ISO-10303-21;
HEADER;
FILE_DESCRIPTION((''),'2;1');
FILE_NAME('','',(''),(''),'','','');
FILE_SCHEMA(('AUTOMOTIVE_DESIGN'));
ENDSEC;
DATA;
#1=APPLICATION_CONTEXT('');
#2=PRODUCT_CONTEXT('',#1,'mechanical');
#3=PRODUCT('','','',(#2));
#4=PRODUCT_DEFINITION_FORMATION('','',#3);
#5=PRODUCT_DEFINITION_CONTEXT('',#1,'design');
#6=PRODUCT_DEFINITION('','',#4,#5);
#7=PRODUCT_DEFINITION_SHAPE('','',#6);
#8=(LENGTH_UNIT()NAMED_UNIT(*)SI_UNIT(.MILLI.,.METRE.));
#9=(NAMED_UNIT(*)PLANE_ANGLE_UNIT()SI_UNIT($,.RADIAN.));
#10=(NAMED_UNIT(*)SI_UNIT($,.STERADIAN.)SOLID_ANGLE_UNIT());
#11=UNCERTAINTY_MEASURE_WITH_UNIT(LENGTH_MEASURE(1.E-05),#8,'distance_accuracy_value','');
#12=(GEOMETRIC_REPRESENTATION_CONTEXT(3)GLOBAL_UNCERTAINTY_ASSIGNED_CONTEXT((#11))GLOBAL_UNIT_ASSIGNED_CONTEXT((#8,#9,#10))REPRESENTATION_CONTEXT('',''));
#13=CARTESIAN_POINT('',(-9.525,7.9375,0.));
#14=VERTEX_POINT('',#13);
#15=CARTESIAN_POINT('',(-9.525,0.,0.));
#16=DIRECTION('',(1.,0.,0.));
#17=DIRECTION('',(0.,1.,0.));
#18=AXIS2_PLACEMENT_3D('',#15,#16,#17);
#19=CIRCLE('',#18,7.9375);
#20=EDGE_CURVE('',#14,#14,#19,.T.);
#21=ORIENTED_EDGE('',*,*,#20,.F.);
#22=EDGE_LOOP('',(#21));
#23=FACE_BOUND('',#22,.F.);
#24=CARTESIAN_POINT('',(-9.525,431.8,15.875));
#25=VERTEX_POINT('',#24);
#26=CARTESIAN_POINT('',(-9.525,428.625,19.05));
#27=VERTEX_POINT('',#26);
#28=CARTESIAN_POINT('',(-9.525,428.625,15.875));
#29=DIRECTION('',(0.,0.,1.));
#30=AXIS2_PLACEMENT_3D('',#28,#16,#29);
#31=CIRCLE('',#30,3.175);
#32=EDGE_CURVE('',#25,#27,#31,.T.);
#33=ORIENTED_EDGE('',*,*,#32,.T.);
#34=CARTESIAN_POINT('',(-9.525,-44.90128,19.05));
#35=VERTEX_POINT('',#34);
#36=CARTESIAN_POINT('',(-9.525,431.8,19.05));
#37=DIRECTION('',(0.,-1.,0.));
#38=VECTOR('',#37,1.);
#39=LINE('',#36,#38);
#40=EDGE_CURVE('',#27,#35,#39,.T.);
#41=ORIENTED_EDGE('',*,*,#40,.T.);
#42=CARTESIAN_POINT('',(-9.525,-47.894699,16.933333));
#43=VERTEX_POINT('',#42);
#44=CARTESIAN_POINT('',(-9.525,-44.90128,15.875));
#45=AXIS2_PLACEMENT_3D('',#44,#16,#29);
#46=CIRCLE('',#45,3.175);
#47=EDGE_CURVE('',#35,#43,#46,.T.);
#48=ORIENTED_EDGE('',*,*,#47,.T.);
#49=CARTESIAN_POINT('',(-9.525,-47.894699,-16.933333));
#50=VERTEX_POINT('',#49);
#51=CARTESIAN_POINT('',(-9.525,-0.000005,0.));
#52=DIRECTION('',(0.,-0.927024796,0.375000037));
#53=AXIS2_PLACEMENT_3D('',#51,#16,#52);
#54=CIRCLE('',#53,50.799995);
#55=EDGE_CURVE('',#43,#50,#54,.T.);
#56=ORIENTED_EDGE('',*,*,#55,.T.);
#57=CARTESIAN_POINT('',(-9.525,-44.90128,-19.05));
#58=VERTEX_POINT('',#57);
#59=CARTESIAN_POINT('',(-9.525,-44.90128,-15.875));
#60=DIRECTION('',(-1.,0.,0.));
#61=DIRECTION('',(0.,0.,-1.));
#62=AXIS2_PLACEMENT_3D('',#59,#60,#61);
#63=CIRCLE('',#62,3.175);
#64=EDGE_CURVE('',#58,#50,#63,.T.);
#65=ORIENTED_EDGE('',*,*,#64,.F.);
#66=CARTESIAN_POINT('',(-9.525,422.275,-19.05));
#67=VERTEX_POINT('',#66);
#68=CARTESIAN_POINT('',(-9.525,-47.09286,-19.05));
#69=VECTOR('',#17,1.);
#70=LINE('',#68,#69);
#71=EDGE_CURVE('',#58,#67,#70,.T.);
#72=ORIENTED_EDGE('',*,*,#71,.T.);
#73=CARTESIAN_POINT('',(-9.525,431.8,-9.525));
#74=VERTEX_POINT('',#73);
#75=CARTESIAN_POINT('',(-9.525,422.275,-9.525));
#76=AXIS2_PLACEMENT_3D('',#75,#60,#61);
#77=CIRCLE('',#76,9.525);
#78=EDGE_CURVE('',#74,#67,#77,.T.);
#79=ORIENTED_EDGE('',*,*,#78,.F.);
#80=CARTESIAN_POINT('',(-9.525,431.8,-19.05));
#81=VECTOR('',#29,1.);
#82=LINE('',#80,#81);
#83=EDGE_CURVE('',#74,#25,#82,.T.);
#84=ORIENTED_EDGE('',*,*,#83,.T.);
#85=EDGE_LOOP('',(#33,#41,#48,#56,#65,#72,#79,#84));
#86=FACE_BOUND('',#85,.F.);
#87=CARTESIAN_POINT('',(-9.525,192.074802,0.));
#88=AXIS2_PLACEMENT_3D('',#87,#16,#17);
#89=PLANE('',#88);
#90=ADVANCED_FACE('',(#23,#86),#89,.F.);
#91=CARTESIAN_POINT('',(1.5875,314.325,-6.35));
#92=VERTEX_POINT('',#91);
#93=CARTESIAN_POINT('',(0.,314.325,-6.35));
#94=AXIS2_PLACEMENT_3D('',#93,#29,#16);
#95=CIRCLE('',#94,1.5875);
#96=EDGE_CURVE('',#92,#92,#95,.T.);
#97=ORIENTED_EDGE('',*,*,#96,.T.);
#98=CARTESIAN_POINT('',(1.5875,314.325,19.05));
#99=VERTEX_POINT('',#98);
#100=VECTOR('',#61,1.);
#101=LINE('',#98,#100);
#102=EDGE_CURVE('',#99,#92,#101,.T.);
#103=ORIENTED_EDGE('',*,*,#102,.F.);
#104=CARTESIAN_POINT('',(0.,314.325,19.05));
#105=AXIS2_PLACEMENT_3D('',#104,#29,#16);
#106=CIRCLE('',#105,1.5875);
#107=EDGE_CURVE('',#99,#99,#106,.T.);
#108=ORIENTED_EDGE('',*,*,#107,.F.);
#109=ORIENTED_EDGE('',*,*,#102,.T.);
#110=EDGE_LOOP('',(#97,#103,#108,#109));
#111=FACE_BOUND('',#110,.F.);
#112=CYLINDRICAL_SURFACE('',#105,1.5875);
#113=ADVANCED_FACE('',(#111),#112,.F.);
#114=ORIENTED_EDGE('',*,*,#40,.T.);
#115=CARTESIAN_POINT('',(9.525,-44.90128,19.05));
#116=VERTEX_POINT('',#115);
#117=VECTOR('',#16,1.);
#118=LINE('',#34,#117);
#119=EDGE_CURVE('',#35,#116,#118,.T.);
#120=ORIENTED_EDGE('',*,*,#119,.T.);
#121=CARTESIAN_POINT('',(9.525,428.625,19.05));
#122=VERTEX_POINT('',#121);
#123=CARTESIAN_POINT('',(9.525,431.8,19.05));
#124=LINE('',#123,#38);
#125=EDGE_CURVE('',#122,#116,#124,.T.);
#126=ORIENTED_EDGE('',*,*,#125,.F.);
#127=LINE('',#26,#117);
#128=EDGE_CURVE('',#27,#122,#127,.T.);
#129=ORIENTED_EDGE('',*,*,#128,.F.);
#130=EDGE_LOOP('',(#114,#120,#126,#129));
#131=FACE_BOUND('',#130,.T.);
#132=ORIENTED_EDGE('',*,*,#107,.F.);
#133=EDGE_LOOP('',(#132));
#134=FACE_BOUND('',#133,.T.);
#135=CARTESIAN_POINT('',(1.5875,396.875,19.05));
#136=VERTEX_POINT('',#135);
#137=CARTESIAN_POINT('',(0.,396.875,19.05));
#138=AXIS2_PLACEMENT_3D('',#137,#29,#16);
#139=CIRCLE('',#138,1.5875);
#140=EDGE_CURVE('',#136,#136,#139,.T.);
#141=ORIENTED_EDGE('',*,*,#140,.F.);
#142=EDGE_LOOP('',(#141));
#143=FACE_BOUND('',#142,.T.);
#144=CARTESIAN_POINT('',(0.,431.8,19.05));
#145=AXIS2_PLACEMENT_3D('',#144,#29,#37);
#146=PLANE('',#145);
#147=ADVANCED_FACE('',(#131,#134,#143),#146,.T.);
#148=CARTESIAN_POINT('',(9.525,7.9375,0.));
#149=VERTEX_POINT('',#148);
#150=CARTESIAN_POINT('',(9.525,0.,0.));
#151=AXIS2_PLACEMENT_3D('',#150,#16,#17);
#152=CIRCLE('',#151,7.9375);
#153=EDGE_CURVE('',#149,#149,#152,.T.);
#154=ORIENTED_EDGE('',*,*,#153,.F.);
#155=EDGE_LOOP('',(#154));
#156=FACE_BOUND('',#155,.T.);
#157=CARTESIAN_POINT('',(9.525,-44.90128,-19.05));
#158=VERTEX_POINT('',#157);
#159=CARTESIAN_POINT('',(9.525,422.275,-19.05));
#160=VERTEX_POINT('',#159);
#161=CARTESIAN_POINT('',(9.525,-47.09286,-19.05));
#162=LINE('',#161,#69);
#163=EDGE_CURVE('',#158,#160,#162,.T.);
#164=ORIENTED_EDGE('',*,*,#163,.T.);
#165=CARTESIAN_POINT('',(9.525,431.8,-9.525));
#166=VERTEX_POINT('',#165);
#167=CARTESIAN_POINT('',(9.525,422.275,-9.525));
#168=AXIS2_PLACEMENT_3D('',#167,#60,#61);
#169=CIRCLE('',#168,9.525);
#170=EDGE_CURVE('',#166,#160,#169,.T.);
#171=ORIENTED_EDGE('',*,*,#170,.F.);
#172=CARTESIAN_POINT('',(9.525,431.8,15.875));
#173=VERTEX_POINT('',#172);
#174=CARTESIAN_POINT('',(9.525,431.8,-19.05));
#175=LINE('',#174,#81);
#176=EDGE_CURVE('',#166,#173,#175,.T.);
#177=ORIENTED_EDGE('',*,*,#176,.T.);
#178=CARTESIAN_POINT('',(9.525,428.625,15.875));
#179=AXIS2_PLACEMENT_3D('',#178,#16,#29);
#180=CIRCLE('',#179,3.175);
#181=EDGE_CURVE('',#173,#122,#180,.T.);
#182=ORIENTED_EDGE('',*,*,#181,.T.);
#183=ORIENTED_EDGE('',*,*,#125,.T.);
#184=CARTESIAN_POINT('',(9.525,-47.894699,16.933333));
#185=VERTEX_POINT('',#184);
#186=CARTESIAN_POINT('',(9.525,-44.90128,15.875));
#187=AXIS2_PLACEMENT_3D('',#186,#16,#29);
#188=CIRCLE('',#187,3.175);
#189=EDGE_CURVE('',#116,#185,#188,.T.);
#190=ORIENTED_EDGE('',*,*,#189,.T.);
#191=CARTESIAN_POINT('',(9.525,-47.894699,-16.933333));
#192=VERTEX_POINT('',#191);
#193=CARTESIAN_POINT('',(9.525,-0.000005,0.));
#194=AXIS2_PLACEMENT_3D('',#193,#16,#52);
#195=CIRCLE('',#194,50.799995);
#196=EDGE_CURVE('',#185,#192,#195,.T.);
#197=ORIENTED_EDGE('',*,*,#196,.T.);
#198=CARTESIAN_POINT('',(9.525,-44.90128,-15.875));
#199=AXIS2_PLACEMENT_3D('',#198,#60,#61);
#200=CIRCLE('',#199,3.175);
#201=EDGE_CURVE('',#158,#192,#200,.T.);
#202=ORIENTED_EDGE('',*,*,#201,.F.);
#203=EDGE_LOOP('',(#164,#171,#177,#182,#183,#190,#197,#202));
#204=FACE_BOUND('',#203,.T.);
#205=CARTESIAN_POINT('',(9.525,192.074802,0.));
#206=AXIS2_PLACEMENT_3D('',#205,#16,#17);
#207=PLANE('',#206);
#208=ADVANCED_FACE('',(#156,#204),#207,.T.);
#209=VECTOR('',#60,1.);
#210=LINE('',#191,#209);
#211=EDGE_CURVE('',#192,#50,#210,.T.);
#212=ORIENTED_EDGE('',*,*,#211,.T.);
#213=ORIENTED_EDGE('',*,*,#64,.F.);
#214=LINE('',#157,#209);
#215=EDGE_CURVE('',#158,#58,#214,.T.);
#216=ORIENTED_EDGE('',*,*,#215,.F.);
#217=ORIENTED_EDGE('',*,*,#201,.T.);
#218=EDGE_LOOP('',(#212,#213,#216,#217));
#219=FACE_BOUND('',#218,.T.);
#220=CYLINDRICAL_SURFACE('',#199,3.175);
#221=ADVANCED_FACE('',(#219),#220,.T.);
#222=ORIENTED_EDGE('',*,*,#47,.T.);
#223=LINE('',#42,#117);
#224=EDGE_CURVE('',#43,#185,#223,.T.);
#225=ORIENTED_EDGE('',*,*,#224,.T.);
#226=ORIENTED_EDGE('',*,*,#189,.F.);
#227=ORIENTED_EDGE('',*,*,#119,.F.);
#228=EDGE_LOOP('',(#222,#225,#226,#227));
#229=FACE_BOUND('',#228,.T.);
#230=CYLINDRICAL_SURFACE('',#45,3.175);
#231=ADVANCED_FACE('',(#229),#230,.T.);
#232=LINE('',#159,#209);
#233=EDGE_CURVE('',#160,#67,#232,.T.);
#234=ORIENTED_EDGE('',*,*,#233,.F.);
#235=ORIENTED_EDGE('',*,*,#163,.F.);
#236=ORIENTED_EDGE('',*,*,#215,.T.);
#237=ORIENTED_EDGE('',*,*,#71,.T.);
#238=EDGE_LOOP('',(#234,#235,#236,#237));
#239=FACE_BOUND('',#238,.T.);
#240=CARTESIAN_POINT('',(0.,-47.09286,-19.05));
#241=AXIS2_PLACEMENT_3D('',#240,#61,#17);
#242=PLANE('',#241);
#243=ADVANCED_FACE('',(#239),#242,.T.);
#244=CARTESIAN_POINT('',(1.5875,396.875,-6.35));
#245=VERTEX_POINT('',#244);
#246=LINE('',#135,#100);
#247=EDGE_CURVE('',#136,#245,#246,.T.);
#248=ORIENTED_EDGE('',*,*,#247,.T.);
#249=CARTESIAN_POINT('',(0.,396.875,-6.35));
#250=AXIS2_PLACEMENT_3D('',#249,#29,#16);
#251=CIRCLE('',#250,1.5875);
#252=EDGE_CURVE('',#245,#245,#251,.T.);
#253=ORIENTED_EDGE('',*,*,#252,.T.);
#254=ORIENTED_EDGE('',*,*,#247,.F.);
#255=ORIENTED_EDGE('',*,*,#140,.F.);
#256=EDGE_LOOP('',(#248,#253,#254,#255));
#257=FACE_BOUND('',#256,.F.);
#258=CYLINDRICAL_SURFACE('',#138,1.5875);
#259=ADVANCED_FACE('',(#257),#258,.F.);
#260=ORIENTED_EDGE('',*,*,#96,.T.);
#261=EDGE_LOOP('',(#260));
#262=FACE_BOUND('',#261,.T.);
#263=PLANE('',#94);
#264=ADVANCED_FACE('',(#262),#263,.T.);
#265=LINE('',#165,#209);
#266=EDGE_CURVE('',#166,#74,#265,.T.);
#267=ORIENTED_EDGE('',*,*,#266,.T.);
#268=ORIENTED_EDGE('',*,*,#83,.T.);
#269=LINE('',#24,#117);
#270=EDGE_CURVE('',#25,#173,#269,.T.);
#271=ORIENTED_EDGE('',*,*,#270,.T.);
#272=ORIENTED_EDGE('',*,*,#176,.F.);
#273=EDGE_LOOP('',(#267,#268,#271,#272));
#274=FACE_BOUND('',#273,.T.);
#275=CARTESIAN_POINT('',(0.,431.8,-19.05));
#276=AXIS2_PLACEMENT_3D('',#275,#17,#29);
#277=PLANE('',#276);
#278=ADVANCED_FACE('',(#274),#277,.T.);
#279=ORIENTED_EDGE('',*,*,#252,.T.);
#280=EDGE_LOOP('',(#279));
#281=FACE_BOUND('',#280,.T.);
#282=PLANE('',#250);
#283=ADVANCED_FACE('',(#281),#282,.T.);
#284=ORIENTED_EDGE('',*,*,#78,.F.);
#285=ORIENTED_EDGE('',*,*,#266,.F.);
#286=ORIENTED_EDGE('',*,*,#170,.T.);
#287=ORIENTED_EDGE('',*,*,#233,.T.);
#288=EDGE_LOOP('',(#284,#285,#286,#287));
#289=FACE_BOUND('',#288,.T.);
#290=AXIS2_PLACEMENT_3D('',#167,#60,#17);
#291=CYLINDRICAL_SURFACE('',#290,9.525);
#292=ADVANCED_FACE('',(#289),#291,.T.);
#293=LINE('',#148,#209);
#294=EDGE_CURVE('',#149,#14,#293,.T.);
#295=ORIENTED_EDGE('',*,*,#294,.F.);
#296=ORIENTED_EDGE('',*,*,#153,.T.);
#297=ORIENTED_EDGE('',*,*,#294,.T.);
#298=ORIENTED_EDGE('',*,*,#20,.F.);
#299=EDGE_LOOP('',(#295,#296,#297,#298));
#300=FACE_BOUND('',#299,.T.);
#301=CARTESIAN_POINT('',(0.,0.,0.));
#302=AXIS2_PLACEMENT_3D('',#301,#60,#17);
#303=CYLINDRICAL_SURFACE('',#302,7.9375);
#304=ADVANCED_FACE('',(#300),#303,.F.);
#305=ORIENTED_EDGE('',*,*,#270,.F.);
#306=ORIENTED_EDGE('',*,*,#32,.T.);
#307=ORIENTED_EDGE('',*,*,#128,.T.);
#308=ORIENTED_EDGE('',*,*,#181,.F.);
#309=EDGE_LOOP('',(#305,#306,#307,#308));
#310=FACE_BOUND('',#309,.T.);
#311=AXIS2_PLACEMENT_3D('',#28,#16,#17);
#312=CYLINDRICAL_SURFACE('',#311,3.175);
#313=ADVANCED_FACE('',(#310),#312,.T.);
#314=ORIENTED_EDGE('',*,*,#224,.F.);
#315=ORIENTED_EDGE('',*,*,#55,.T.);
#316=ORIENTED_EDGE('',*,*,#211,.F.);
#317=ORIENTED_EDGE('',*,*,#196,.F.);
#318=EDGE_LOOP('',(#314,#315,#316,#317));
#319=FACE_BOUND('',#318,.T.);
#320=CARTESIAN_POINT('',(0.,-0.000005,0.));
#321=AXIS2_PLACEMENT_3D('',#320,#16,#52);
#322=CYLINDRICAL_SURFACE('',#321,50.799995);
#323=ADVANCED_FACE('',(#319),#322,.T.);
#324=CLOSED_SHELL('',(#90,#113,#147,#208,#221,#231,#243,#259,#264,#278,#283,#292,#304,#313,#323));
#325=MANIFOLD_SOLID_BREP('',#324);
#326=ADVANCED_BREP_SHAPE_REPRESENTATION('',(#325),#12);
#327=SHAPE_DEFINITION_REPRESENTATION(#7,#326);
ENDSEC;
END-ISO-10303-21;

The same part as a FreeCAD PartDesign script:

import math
import FreeCAD as App
import Part
import Sketcher
Q = App.Units.Quantity


def edges_at(feature, points):
    """Names of the edges that pass closest to the given points."""
    edges = feature.Shape.Edges
    near = lambda p: min(range(len(edges)), key=lambda i: edges[i].distToShape(Part.Vertex(*p))[0])
    return sorted({f"Edge{near(p) + 1}" for p in points})

doc = App.newDocument("Part")
params = doc.addObject("Spreadsheet::Sheet", "Params")
for row, (alias, value) in enumerate([
    ("sketch1_radius", "1.9999998 in"),
    ("sketch1_diameter", "0.625 in"),
    ("sketch1_height", "1.5 in"),
    ("pad1_length", "0.75 in"),
    ("sketch2_diameter", "0.125 in"),
    ("pocket1_length", "1 in"),
    ("fillet_radius", "0.375 in"),
    ("fillet2_radius", "0.125 in"),
], start=1):
    params.set(f"A{row}", alias)
    params.set(f"B{row}", "=" + value)
    params.setAlias(f"B{row}", alias)

body = doc.addObject("PartDesign::Body", "Body")

# Sketch on YZ plane
sketch1 = body.newObject("Sketcher::SketchObject", "Sketch")
sketch1.AttachmentSupport = (doc.getObject("YZ_Plane"), [""])
sketch1.MapMode = "FlatFace"
sketch1.addGeometry(Part.LineSegment(App.Vector(432, -19, 0), App.Vector(432, 19, 0)), False)
sketch1.addGeometry(Part.LineSegment(App.Vector(432, 19, 0), App.Vector(-47, 19, 0)), False)
sketch1.addGeometry(Part.ArcOfCircle(Part.Circle(App.Vector(0, 0, 0), App.Vector(0, 0, 1), 51), math.radians(158), math.radians(202)), False)
sketch1.addGeometry(Part.LineSegment(App.Vector(-47, -19, 0), App.Vector(432, -19, 0)), False)
sketch1.addGeometry(Part.Circle(App.Vector(0, 0, 0), App.Vector(0, 0, 1), 8), False)
sketch1.addConstraint(Sketcher.Constraint("Coincident", 0, 2, 1, 1))
sketch1.addConstraint(Sketcher.Constraint("Coincident", 1, 2, 2, 1))
sketch1.addConstraint(Sketcher.Constraint("Coincident", 2, 2, 3, 1))
sketch1.addConstraint(Sketcher.Constraint("Coincident", 3, 2, 0, 1))
sketch1.addConstraint(Sketcher.Constraint("Vertical", 0))
sketch1.addConstraint(Sketcher.Constraint("Horizontal", 1))
sketch1.addConstraint(Sketcher.Constraint("Horizontal", 3))
sketch1.addConstraint(Sketcher.Constraint("Coincident", 2, 3, -1, 1))
sketch1.addConstraint(Sketcher.Constraint("Coincident", 4, 3, -1, 1))
sketch1.addConstraint(Sketcher.Constraint("Vertical", 1, 2, 2, 2))
sketch1.addConstraint(Sketcher.Constraint("Radius", 2, Q("1.9999998 in")))
sketch1.addConstraint(Sketcher.Constraint("Diameter", 4, Q("0.625 in")))
sketch1.addConstraint(Sketcher.Constraint("DistanceY", 0, 1, 0, 2, Q("1.5 in")))
sketch1.addConstraint(Sketcher.Constraint("DistanceX", -1, 1, 0, 2, Q("17 in")))
sketch1.setExpression("Constraints[10]", "Params.sketch1_radius")
sketch1.setExpression("Constraints[11]", "Params.sketch1_diameter")
sketch1.setExpression("Constraints[12]", "Params.sketch1_height")
pad1 = body.newObject("PartDesign::Pad", "Pad")
pad1.Profile = sketch1
pad1.setExpression("Length", "Params.pad1_length")
pad1.Midplane = True

# Sketch on XY plane
sketch2 = body.newObject("Sketcher::SketchObject", "Sketch001")
sketch2.AttachmentSupport = (doc.getObject("XY_Plane"), [""])
sketch2.MapMode = "FlatFace"
sketch2.AttachmentOffset = App.Placement(App.Vector(0, 0, 0.75 * 25.4), App.Rotation())
sketch2.addGeometry(Part.Circle(App.Vector(0, 396.9, 0), App.Vector(0, 0, 1), 1.6), False)
sketch2.addGeometry(Part.Circle(App.Vector(0, 314.3, 0), App.Vector(0, 0, 1), 1.6), False)
sketch2.addConstraint(Sketcher.Constraint("Equal", 0, 1))
sketch2.addConstraint(Sketcher.Constraint("PointOnObject", 0, 3, -2))
sketch2.addConstraint(Sketcher.Constraint("PointOnObject", 1, 3, -2))
sketch2.addConstraint(Sketcher.Constraint("Diameter", 0, Q("0.125 in")))
sketch2.addConstraint(Sketcher.Constraint("DistanceY", 1, 3, 0, 3, Q("3.25 in")))
sketch2.addConstraint(Sketcher.Constraint("DistanceY", -1, 1, 0, 3, Q("15.625 in")))
sketch2.setExpression("Constraints[3]", "Params.sketch2_diameter")
pocket1 = body.newObject("PartDesign::Pocket", "Pocket")
pocket1.Profile = sketch2
pocket1.setExpression("Length", "Params.pocket1_length")
doc.recompute()

fillet = body.newObject("PartDesign::Fillet", "Fillet")
fillet.Base = (pocket1, edges_at(pocket1, [(0, 431.8, -19.05)]))
fillet.setExpression("Radius", "Params.fillet_radius")
doc.recompute()

fillet2 = body.newObject("PartDesign::Fillet", "Fillet001")
fillet2.Base = (fillet, edges_at(fillet, [(0, 431.8, 19.05), (0, -47.093, -19.05), (0, -47.093, 19.05)]))
fillet2.setExpression("Radius", "Params.fillet2_radius")

doc.recompute()
